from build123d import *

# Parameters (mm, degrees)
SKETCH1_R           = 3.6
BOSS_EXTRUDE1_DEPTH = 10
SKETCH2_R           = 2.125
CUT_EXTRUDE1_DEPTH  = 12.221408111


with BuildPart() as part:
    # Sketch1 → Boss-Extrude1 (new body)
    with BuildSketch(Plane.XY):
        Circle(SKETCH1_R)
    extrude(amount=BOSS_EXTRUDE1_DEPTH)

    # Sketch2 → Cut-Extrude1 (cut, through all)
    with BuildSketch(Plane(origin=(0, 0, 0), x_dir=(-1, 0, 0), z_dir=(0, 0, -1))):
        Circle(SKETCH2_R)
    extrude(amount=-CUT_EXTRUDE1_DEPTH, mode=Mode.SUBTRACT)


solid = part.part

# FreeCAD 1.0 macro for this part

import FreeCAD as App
import Part
import Sketcher
Q = App.Units.Quantity

doc = App.newDocument("Part")
body = doc.addObject("PartDesign::Body", "Body")

# Sketch on XY plane
sketch1 = body.newObject("Sketcher::SketchObject", "Sketch")
sketch1.AttachmentSupport = (doc.getObject("XY_Plane"), [""])
sketch1.MapMode = "FlatFace"
sketch1.addGeometry(Part.Circle(App.Vector(0, 0, 0), App.Vector(0, 0, 1), 3.6), False)
sketch1.addConstraint(Sketcher.Constraint("Coincident", 0, 3, -1, 1))
sketch1.addConstraint(Sketcher.Constraint("Diameter", 0, Q("7.2 mm")))
pad1 = body.newObject("PartDesign::Pad", "Pad")
pad1.Profile = sketch1
pad1.Length = 10

# Sketch on XY plane
sketch2 = body.newObject("Sketcher::SketchObject", "Sketch001")
sketch2.AttachmentSupport = (doc.getObject("XY_Plane"), [""])
sketch2.MapMode = "FlatFace"
sketch2.addGeometry(Part.Circle(App.Vector(0, 0, 0), App.Vector(0, 0, 1), 2.1), False)
sketch2.addConstraint(Sketcher.Constraint("Coincident", 0, 3, -1, 1))
sketch2.addConstraint(Sketcher.Constraint("Diameter", 0, Q("4.25 mm")))
pocket1 = body.newObject("PartDesign::Pocket", "Pocket")
pocket1.Profile = sketch2
pocket1.Type = "ThroughAll"
pocket1.Reversed = True

doc.recompute()
